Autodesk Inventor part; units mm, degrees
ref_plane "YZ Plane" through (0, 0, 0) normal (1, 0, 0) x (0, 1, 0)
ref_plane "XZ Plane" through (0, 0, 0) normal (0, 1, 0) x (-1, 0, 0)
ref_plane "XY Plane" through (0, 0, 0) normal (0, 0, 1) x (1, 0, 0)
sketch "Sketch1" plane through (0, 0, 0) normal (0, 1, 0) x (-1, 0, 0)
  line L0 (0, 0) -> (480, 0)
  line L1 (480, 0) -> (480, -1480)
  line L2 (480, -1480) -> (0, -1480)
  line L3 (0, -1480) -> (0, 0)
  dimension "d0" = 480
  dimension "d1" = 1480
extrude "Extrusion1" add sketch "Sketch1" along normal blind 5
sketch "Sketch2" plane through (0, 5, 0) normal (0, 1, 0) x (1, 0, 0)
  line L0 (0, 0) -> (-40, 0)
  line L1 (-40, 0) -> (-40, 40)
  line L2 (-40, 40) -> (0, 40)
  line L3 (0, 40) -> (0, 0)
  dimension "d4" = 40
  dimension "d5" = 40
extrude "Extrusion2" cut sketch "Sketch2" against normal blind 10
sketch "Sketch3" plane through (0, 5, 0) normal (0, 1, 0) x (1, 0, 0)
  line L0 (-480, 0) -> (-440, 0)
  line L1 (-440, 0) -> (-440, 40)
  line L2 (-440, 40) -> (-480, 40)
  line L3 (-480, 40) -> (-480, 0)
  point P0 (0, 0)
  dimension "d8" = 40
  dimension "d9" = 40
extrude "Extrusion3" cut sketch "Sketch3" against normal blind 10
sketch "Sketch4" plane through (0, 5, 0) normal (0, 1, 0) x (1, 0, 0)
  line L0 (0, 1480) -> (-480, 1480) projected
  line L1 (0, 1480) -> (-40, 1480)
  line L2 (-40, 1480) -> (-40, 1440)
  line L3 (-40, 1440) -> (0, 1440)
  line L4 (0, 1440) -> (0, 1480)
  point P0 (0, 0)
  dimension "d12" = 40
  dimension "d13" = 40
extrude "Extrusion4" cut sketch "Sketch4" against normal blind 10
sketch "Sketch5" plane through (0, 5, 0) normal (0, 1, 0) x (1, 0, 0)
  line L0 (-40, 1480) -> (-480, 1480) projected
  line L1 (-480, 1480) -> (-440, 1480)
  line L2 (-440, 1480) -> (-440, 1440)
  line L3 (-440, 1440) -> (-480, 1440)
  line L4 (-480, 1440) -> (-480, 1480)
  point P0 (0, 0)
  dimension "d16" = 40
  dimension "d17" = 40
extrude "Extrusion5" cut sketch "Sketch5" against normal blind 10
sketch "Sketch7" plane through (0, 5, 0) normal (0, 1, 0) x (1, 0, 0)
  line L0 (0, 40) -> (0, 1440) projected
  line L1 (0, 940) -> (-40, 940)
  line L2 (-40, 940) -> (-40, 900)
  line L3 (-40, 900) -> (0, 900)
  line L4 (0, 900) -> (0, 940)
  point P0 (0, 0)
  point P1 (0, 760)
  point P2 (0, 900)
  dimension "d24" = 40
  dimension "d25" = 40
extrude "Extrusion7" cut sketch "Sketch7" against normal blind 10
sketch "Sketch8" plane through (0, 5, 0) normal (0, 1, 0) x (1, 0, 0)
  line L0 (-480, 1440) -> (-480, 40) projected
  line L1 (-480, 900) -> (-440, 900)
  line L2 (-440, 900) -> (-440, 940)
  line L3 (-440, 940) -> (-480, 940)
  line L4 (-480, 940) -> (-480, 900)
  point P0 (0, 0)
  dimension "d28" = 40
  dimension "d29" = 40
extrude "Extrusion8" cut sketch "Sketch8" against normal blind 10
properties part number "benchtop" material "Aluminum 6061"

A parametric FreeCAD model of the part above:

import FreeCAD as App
import Part
import Sketcher

V = App.Vector
Q = App.Units.Quantity


def add_polygon(sketch, points):
    """Adds a closed chain of lines whose ends are joined by coincident constraints."""
    first, n = sketch.GeometryCount, len(points)
    for a, b in zip(points, points[1:] + points[:1]):
        sketch.addGeometry(Part.LineSegment(App.Vector(*a, 0), App.Vector(*b, 0)), False)
    for i in range(n):
        sketch.addConstraint(Sketcher.Constraint("Coincident", first + i, 2, first + (i + 1) % n, 1))

doc = App.newDocument("Part")
params = doc.addObject("Spreadsheet::Sheet", "Params")
for row, (alias, value) in enumerate([
    ("sketch1_width", "480 mm"),
    ("sketch1_height", "1480 mm"),
    ("pad1_length", "5 mm"),
    ("sketch2_width", "40 mm"),
    ("pocket1_length", "10 mm"),
    ("sketch3_width", "40 mm"),
    ("pocket2_length", "10 mm"),
    ("sketch4_width", "40 mm"),
    ("pocket3_length", "10 mm"),
    ("sketch5_width", "40 mm"),
    ("pocket4_length", "10 mm"),
    ("sketch6_width", "40 mm"),
    ("pocket5_length", "10 mm"),
    ("sketch7_width", "40 mm"),
    ("pocket6_length", "10 mm"),
], start=1):
    params.set(f"A{row}", alias)
    params.set(f"B{row}", "=" + value)
    params.setAlias(f"B{row}", alias)

body = doc.addObject("PartDesign::Body", "Body")

sketch1 = body.newObject("Sketcher::SketchObject", "Sketch")
sketch1.AttachmentSupport = (doc.getObject("XZ_Plane"), [""])
sketch1.MapMode = "FlatFace"
add_polygon(sketch1, [(-480, 0), (0, 0), (0, -1480), (-480, -1480)])
sketch1.addConstraint(Sketcher.Constraint("Horizontal", 0))
sketch1.addConstraint(Sketcher.Constraint("Vertical", 1))
sketch1.addConstraint(Sketcher.Constraint("Horizontal", 2))
sketch1.addConstraint(Sketcher.Constraint("Vertical", 3))
sketch1.addConstraint(Sketcher.Constraint("Coincident", 0, 2, -1, 1))
sketch1.addConstraint(Sketcher.Constraint("DistanceX", 0, 1, 0, 2, Q("480 mm")))
sketch1.addConstraint(Sketcher.Constraint("DistanceY", 1, 2, 1, 1, Q("1480 mm")))
sketch1.setExpression("Constraints[9]", "Params.sketch1_width")
sketch1.setExpression("Constraints[10]", "Params.sketch1_height")
pad1 = body.newObject("PartDesign::Pad", "Pad")
pad1.Profile = sketch1
pad1.setExpression("Length", "Params.pad1_length")
pad1.Reversed = True

sketch2 = body.newObject("Sketcher::SketchObject", "Sketch001")
sketch2.AttachmentSupport = (doc.getObject("XZ_Plane"), [""])
sketch2.MapMode = "FlatFace"
sketch2.AttachmentOffset = App.Placement(V(0, 0, -5), App.Rotation())
add_polygon(sketch2, [(-40, 0), (0, 0), (0, -40), (-40, -40)])
sketch2.addConstraint(Sketcher.Constraint("Horizontal", 0))
sketch2.addConstraint(Sketcher.Constraint("Vertical", 1))
sketch2.addConstraint(Sketcher.Constraint("Horizontal", 2))
sketch2.addConstraint(Sketcher.Constraint("Vertical", 3))
sketch2.addConstraint(Sketcher.Constraint("Coincident", 0, 2, -1, 1))
sketch2.addConstraint(Sketcher.Constraint("Equal", 2, 1))
sketch2.addConstraint(Sketcher.Constraint("DistanceX", 0, 1, 0, 2, Q("40 mm")))
sketch2.setExpression("Constraints[10]", "Params.sketch2_width")
pocket1 = body.newObject("PartDesign::Pocket", "Pocket")
pocket1.Profile = sketch2
pocket1.setExpression("Length", "Params.pocket1_length")
pocket1.Reversed = True

sketch3 = body.newObject("Sketcher::SketchObject", "Sketch002")
sketch3.AttachmentSupport = (doc.getObject("XZ_Plane"), [""])
sketch3.MapMode = "FlatFace"
sketch3.AttachmentOffset = App.Placement(V(0, 0, -5), App.Rotation())
add_polygon(sketch3, [(-480, -40), (-480, 0), (-440, 0), (-440, -40)])
sketch3.addConstraint(Sketcher.Constraint("Vertical", 0))
sketch3.addConstraint(Sketcher.Constraint("Horizontal", 1))
sketch3.addConstraint(Sketcher.Constraint("Vertical", 2))
sketch3.addConstraint(Sketcher.Constraint("Horizontal", 3))
sketch3.addConstraint(Sketcher.Constraint("PointOnObject", 0, 2, -1))
sketch3.addConstraint(Sketcher.Constraint("Equal", 3, 0))
sketch3.addConstraint(Sketcher.Constraint("DistanceX", 1, 1, 1, 2, Q("40 mm")))
sketch3.addConstraint(Sketcher.Constraint("DistanceX", 0, 2, -1, 1, Q("480 mm")))
sketch3.setExpression("Constraints[10]", "Params.sketch3_width")
pocket2 = body.newObject("PartDesign::Pocket", "Pocket001")
pocket2.Profile = sketch3
pocket2.setExpression("Length", "Params.pocket2_length")
pocket2.Reversed = True

sketch4 = body.newObject("Sketcher::SketchObject", "Sketch003")
sketch4.AttachmentSupport = (doc.getObject("XZ_Plane"), [""])
sketch4.MapMode = "FlatFace"
sketch4.AttachmentOffset = App.Placement(V(0, 0, -5), App.Rotation())
add_polygon(sketch4, [(0, -1440), (0, -1480), (-40, -1480), (-40, -1440)])
sketch4.addConstraint(Sketcher.Constraint("Vertical", 0))
sketch4.addConstraint(Sketcher.Constraint("Horizontal", 1))
sketch4.addConstraint(Sketcher.Constraint("Vertical", 2))
sketch4.addConstraint(Sketcher.Constraint("Horizontal", 3))
sketch4.addConstraint(Sketcher.Constraint("PointOnObject", 0, 2, -2))
sketch4.addConstraint(Sketcher.Constraint("Equal", 3, 0))
sketch4.addConstraint(Sketcher.Constraint("DistanceX", 1, 2, 1, 1, Q("40 mm")))
sketch4.addConstraint(Sketcher.Constraint("DistanceY", 0, 2, -1, 1, Q("1480 mm")))
sketch4.setExpression("Constraints[10]", "Params.sketch4_width")
pocket3 = body.newObject("PartDesign::Pocket", "Pocket002")
pocket3.Profile = sketch4
pocket3.setExpression("Length", "Params.pocket3_length")
pocket3.Reversed = True

sketch5 = body.newObject("Sketcher::SketchObject", "Sketch004")
sketch5.AttachmentSupport = (doc.getObject("XZ_Plane"), [""])
sketch5.MapMode = "FlatFace"
sketch5.AttachmentOffset = App.Placement(V(0, 0, -5), App.Rotation())
add_polygon(sketch5, [(-440, -1440), (-440, -1480), (-480, -1480), (-480, -1440)])
sketch5.addConstraint(Sketcher.Constraint("Vertical", 0))
sketch5.addConstraint(Sketcher.Constraint("Horizontal", 1))
sketch5.addConstraint(Sketcher.Constraint("Vertical", 2))
sketch5.addConstraint(Sketcher.Constraint("Horizontal", 3))
sketch5.addConstraint(Sketcher.Constraint("Equal", 3, 0))
sketch5.addConstraint(Sketcher.Constraint("DistanceX", 1, 2, 1, 1, Q("40 mm")))
sketch5.addConstraint(Sketcher.Constraint("DistanceX", 0, 2, -1, 1, Q("440 mm")))
sketch5.addConstraint(Sketcher.Constraint("DistanceY", 0, 2, -1, 1, Q("1480 mm")))
sketch5.setExpression("Constraints[9]", "Params.sketch5_width")
pocket4 = body.newObject("PartDesign::Pocket", "Pocket003")
pocket4.Profile = sketch5
pocket4.setExpression("Length", "Params.pocket4_length")
pocket4.Reversed = True

sketch6 = body.newObject("Sketcher::SketchObject", "Sketch005")
sketch6.AttachmentSupport = (doc.getObject("XZ_Plane"), [""])
sketch6.MapMode = "FlatFace"
sketch6.AttachmentOffset = App.Placement(V(0, 0, -5), App.Rotation())
add_polygon(sketch6, [(-40, -900), (0, -900), (0, -940), (-40, -940)])
sketch6.addConstraint(Sketcher.Constraint("Horizontal", 0))
sketch6.addConstraint(Sketcher.Constraint("Vertical", 1))
sketch6.addConstraint(Sketcher.Constraint("Horizontal", 2))
sketch6.addConstraint(Sketcher.Constraint("Vertical", 3))
sketch6.addConstraint(Sketcher.Constraint("PointOnObject", 0, 2, -2))
sketch6.addConstraint(Sketcher.Constraint("Equal", 2, 1))
sketch6.addConstraint(Sketcher.Constraint("DistanceX", 0, 1, 0, 2, Q("40 mm")))
sketch6.addConstraint(Sketcher.Constraint("DistanceY", 0, 2, -1, 1, Q("900 mm")))
sketch6.setExpression("Constraints[10]", "Params.sketch6_width")
pocket5 = body.newObject("PartDesign::Pocket", "Pocket004")
pocket5.Profile = sketch6
pocket5.setExpression("Length", "Params.pocket5_length")
pocket5.Reversed = True

sketch7 = body.newObject("Sketcher::SketchObject", "Sketch006")
sketch7.AttachmentSupport = (doc.getObject("XZ_Plane"), [""])
sketch7.MapMode = "FlatFace"
sketch7.AttachmentOffset = App.Placement(V(0, 0, -5), App.Rotation())
add_polygon(sketch7, [(-440, -940), (-480, -940), (-480, -900), (-440, -900)])
sketch7.addConstraint(Sketcher.Constraint("Horizontal", 0))
sketch7.addConstraint(Sketcher.Constraint("Vertical", 1))
sketch7.addConstraint(Sketcher.Constraint("Horizontal", 2))
sketch7.addConstraint(Sketcher.Constraint("Vertical", 3))
sketch7.addConstraint(Sketcher.Constraint("Equal", 2, 1))
sketch7.addConstraint(Sketcher.Constraint("DistanceX", 0, 2, 0, 1, Q("40 mm")))
sketch7.addConstraint(Sketcher.Constraint("DistanceX", 0, 2, -1, 1, Q("480 mm")))
sketch7.addConstraint(Sketcher.Constraint("DistanceY", 0, 2, -1, 1, Q("940 mm")))
sketch7.setExpression("Constraints[9]", "Params.sketch7_width")
pocket6 = body.newObject("PartDesign::Pocket", "Pocket005")
pocket6.Profile = sketch7
pocket6.setExpression("Length", "Params.pocket6_length")
pocket6.Reversed = True

doc.recompute()
